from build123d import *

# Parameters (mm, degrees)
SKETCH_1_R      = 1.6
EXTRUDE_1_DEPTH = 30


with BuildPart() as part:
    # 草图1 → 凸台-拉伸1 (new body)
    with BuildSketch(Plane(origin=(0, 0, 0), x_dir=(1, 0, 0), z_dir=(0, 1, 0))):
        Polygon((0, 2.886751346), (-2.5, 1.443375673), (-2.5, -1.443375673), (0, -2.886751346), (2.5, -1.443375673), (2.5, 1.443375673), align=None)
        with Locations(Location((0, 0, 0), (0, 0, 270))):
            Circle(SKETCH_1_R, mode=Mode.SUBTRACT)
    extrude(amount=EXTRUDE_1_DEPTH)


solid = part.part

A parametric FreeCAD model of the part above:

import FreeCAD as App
import Part
import Sketcher
from FreeCAD import Vector
Q = App.Units.Quantity

doc = App.newDocument("Part")
body = doc.addObject("PartDesign::Body", "Body")

sketch1 = body.newObject("Sketcher::SketchObject", "Sketch")
sketch1.AttachmentSupport = (doc.getObject("XZ_Plane"), [""])
sketch1.MapMode = "FlatFace"
sketch1.addGeometry([
    Part.LineSegment(Vector(0, -2.9, 0), Vector(-2.5, -1.4, 0)),
    Part.LineSegment(Vector(-2.5, -1.4, 0), Vector(-2.5, 1.4, 0)),
    Part.LineSegment(Vector(-2.5, 1.4, 0), Vector(0, 2.9, 0)),
    Part.LineSegment(Vector(0, 2.9, 0), Vector(2.5, 1.4, 0)),
    Part.LineSegment(Vector(2.5, 1.4, 0), Vector(2.5, -1.4, 0)),
    Part.LineSegment(Vector(2.5, -1.4, 0), Vector(0, -2.9, 0)),
    Part.Circle(Vector(0, 0, 0), Vector(0, 0, 1), 1.6),
], False)
sketch1.addConstraint([
    Sketcher.Constraint("Coincident", 0, 2, 1, 1),
    Sketcher.Constraint("Coincident", 1, 2, 2, 1),
    Sketcher.Constraint("Coincident", 2, 2, 3, 1),
    Sketcher.Constraint("Coincident", 3, 2, 4, 1),
    Sketcher.Constraint("Coincident", 4, 2, 5, 1),
    Sketcher.Constraint("Coincident", 5, 2, 0, 1),
    Sketcher.Constraint("Vertical", 1),
    Sketcher.Constraint("Vertical", 4),
    Sketcher.Constraint("Coincident", 6, 3, -1, 1),
    Sketcher.Constraint("Symmetric", 0, 2, 3, 2, -1, 1),
    Sketcher.Constraint("Symmetric", 2, 2, 5, 2, -1, 1),
    Sketcher.Constraint("PointOnObject", 2, 2, -2),
    Sketcher.Constraint("Parallel", 2, 5),
    Sketcher.Constraint("Horizontal", 1, 2, 3, 2),
    Sketcher.Constraint("Diameter", 6, Q("3.2 mm")),
    Sketcher.Constraint("Angle", 0, Q("150 deg")),
    Sketcher.Constraint("DistanceX", 1, 2, 3, 2, Q("5 mm")),
    Sketcher.Constraint("DistanceY", 1, 1, 1, 2, Q("2.886751 mm")),
])
pad1 = body.newObject("PartDesign::Pad", "Pad")
pad1.Profile = sketch1
pad1.Length = 30
pad1.Reversed = True

doc.recompute()
